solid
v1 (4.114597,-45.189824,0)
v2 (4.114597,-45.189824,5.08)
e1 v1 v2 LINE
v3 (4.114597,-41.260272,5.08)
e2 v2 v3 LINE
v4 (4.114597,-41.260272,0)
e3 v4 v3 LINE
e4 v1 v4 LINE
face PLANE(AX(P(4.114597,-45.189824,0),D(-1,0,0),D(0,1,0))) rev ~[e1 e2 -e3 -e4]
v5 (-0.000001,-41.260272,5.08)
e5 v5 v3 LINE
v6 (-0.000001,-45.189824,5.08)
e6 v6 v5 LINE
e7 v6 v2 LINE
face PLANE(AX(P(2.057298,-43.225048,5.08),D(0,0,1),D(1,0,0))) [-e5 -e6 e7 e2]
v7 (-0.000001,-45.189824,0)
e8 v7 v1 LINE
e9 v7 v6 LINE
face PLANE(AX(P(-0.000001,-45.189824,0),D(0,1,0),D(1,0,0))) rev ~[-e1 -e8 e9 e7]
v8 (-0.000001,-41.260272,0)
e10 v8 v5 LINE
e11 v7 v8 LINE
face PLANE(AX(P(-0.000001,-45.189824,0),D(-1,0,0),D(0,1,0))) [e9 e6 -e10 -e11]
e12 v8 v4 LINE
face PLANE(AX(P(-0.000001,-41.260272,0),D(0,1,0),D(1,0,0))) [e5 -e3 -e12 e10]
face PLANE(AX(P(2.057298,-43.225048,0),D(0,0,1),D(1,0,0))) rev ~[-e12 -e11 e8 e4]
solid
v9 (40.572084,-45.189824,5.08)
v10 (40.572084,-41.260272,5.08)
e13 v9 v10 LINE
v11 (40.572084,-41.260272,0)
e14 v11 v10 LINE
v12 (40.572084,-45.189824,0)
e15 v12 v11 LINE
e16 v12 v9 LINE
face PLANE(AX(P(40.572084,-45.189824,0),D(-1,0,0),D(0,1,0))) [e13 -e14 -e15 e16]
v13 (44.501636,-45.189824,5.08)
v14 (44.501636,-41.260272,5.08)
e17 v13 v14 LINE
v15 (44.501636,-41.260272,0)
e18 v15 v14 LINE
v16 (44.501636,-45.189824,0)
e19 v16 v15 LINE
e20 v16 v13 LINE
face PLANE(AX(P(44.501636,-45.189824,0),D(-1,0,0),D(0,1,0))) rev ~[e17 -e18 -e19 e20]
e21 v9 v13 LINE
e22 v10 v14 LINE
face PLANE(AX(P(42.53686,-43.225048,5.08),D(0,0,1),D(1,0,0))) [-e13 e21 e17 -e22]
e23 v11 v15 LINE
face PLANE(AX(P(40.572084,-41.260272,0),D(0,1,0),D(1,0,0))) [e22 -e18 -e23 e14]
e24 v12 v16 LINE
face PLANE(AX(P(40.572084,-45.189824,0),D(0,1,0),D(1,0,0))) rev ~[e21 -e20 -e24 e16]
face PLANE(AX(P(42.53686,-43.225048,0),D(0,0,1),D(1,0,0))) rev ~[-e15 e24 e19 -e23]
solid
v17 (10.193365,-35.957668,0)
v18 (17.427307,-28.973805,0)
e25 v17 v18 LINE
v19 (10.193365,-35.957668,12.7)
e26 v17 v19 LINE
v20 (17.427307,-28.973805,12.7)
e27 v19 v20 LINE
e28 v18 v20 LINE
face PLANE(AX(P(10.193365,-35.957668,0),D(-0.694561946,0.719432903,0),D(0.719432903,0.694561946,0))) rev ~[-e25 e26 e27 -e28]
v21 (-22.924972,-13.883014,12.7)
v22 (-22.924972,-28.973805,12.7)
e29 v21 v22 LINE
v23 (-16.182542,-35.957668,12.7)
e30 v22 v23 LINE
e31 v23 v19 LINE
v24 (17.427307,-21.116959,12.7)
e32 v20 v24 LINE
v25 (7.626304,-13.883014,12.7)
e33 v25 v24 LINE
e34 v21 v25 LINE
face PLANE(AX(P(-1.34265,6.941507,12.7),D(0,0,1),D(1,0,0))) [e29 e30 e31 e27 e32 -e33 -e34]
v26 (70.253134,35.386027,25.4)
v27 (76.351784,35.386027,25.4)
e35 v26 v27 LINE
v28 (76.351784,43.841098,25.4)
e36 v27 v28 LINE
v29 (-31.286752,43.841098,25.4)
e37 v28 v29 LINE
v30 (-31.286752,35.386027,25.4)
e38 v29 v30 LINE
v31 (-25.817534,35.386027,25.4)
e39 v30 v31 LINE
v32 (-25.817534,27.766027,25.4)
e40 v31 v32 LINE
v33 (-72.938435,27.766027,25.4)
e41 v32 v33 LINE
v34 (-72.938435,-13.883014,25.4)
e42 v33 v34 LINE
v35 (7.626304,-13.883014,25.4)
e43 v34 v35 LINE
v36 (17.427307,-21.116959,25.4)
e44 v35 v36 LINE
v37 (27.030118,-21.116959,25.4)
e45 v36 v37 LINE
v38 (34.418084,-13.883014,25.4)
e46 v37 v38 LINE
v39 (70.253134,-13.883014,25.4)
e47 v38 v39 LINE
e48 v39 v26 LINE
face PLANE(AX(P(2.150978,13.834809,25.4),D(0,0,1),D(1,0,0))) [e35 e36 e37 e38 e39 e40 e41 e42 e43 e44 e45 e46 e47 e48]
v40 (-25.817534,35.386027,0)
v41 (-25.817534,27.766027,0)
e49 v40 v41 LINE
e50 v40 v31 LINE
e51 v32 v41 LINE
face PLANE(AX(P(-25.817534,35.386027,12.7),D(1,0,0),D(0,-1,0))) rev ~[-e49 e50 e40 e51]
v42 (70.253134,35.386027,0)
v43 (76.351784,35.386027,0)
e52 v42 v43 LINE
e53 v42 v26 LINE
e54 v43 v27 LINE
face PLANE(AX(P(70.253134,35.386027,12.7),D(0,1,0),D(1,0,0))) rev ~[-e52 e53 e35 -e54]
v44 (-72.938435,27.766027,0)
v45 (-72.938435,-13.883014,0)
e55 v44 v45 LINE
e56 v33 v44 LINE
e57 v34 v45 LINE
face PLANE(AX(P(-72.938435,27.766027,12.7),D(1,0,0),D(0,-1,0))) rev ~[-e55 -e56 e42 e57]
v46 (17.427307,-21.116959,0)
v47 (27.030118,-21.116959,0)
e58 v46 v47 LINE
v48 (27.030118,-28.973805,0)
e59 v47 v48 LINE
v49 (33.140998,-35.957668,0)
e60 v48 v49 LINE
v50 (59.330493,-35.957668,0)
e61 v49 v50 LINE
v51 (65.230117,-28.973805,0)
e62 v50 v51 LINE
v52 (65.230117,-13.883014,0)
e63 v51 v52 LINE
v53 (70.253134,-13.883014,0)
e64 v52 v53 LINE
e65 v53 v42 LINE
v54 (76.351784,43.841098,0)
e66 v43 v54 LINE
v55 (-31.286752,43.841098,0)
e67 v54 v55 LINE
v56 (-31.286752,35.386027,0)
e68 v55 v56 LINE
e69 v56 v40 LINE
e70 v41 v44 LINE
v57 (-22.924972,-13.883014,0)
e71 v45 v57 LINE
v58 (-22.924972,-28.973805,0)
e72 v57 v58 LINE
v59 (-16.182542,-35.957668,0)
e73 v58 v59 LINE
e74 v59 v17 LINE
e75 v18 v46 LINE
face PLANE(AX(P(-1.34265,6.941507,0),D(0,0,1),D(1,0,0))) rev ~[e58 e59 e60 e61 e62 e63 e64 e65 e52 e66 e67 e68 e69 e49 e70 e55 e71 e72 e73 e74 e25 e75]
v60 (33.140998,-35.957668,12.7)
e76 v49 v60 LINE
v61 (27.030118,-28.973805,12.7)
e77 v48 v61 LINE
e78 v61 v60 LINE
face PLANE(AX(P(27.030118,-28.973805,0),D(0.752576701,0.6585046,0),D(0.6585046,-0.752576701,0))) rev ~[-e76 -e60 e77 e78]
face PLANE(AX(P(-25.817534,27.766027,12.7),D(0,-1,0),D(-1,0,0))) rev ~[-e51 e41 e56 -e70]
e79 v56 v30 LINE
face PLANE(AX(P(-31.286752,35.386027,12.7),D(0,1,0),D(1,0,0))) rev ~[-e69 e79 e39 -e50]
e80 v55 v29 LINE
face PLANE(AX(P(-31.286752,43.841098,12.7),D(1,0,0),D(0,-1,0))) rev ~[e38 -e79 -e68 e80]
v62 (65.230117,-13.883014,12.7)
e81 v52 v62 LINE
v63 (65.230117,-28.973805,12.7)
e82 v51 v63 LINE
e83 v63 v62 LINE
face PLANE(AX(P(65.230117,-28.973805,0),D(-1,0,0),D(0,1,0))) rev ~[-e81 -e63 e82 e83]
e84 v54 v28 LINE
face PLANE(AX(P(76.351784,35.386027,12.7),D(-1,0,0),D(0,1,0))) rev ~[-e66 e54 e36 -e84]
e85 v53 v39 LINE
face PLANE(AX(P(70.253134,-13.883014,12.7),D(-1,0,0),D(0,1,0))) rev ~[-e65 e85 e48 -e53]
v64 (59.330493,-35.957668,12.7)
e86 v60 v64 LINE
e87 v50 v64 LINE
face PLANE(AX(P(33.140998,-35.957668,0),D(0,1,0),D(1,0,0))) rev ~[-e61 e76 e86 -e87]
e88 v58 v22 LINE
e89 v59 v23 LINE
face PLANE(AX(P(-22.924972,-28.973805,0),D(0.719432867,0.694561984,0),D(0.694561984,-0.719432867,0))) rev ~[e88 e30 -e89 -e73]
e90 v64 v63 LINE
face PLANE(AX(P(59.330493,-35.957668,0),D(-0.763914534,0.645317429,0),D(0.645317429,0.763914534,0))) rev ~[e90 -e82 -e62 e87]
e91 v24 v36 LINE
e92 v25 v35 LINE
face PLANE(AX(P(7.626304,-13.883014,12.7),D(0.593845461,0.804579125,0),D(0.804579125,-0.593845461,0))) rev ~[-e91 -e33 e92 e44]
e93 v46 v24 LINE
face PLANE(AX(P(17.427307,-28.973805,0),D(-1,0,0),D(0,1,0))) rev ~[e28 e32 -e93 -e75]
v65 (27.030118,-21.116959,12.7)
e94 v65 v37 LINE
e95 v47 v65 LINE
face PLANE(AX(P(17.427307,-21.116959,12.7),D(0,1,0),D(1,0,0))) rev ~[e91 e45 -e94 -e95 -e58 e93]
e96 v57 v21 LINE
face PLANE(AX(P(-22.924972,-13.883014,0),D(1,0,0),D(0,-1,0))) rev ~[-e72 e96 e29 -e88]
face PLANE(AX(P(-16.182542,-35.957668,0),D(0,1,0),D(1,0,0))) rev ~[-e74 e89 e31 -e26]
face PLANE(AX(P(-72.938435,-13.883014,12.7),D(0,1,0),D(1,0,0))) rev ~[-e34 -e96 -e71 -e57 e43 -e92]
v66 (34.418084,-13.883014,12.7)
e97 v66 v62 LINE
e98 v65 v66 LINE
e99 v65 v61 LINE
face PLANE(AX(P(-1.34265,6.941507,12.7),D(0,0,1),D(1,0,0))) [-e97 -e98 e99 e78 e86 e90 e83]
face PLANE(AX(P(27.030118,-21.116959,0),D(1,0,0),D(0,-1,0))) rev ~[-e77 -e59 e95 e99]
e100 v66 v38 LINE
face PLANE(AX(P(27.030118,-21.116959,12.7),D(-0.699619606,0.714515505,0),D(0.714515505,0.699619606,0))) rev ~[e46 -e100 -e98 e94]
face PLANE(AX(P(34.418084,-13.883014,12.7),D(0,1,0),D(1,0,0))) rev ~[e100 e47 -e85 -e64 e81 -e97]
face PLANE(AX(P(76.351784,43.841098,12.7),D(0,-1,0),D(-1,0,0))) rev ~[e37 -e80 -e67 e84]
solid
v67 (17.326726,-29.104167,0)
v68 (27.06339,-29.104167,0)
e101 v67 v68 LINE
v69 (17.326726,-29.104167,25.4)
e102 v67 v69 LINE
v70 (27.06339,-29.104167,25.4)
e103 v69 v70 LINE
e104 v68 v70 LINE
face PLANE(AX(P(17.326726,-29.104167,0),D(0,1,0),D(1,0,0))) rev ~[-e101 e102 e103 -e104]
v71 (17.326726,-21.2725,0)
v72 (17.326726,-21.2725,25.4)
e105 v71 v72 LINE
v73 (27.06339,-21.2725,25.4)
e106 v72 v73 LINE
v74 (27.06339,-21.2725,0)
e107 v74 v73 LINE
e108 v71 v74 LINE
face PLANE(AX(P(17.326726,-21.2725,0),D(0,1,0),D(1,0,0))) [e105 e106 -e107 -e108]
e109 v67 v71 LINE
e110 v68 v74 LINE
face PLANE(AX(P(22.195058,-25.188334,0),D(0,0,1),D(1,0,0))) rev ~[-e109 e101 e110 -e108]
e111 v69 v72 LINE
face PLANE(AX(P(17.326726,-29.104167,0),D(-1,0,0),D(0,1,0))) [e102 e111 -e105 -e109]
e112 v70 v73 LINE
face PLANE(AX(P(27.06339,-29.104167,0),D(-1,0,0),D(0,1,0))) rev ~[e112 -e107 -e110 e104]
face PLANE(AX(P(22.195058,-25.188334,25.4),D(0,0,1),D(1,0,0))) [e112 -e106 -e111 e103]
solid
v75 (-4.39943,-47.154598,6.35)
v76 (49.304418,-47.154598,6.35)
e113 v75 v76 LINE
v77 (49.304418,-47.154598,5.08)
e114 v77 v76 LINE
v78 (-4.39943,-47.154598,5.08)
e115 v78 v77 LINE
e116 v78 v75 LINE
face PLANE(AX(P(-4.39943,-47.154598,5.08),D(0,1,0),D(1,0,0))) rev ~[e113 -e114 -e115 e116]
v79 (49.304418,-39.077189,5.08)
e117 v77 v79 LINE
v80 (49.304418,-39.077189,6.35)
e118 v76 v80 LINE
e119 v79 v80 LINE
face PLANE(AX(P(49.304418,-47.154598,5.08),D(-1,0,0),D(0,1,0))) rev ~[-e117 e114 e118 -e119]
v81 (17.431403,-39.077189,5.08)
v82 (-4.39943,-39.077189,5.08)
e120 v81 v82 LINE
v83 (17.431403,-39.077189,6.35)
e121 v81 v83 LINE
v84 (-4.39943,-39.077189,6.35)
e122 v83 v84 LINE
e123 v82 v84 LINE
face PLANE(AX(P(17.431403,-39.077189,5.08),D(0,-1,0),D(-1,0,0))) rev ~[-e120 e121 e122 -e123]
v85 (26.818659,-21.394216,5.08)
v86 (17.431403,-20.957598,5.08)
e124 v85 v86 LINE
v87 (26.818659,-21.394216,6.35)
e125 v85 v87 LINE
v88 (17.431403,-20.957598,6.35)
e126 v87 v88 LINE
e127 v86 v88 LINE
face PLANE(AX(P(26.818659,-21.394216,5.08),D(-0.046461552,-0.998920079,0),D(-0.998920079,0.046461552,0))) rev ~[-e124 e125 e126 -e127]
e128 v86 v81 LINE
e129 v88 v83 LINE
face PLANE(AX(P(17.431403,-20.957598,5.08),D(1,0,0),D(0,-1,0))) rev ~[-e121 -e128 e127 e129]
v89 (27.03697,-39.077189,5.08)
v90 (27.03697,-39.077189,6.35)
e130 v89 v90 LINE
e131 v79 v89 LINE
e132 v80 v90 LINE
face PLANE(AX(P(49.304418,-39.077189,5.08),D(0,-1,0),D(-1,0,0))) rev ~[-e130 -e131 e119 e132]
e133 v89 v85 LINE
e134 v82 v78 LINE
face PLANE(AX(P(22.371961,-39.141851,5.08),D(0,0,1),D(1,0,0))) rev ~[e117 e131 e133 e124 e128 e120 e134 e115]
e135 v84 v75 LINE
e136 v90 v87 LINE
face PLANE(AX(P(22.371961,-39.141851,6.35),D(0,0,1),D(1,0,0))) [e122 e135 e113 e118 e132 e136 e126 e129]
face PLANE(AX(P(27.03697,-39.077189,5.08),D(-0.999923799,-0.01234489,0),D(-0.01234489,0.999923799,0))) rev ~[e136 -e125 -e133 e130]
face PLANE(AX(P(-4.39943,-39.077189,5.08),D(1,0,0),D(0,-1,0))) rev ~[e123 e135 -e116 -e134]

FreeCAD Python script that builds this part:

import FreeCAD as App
import Part
import Sketcher
Q = App.Units.Quantity


def add_polygon(sketch, points):
    """Adds a closed chain of lines whose ends are joined by coincident constraints."""
    first, n = sketch.GeometryCount, len(points)
    for a, b in zip(points, points[1:] + points[:1]):
        sketch.addGeometry(Part.LineSegment(App.Vector(*a, 0), App.Vector(*b, 0)), False)
    for i in range(n):
        sketch.addConstraint(Sketcher.Constraint("Coincident", first + i, 2, first + (i + 1) % n, 1))

doc = App.newDocument("Part")
body = doc.addObject("PartDesign::Body", "Body")

sketch1 = body.newObject("Sketcher::SketchObject", "Sketch")
sketch1.AttachmentSupport = (doc.getObject("XY_Plane"), [""])
sketch1.MapMode = "FlatFace"
add_polygon(sketch1, [(-73, 28), (-73, -14), (-23, -14), (-23, -29), (-16, -36), (10, -36), (17, -29), (17, -21), (27, -21), (27, -29), (33, -36), (59, -36), (65, -29), (65, -14), (70, -14), (70, 35), (76, 35), (76, 44), (-31, 44), (-31, 35), (-26, 35), (-26, 28)])
sketch1.addConstraint(Sketcher.Constraint("Vertical", 0))
sketch1.addConstraint(Sketcher.Constraint("Horizontal", 1))
sketch1.addConstraint(Sketcher.Constraint("Vertical", 2))
sketch1.addConstraint(Sketcher.Constraint("Horizontal", 4))
sketch1.addConstraint(Sketcher.Constraint("Vertical", 6))
sketch1.addConstraint(Sketcher.Constraint("Horizontal", 7))
sketch1.addConstraint(Sketcher.Constraint("Vertical", 8))
sketch1.addConstraint(Sketcher.Constraint("Horizontal", 10))
sketch1.addConstraint(Sketcher.Constraint("Vertical", 12))
sketch1.addConstraint(Sketcher.Constraint("Horizontal", 13))
sketch1.addConstraint(Sketcher.Constraint("Vertical", 14))
sketch1.addConstraint(Sketcher.Constraint("Horizontal", 15))
sketch1.addConstraint(Sketcher.Constraint("Vertical", 16))
sketch1.addConstraint(Sketcher.Constraint("Horizontal", 17))
sketch1.addConstraint(Sketcher.Constraint("Vertical", 18))
sketch1.addConstraint(Sketcher.Constraint("Horizontal", 19))
sketch1.addConstraint(Sketcher.Constraint("Vertical", 20))
sketch1.addConstraint(Sketcher.Constraint("Horizontal", 21))
sketch1.addConstraint(Sketcher.Constraint("Perpendicular", 3, 5))
sketch1.addConstraint(Sketcher.Constraint("Horizontal", 2, 2, 5, 2))
sketch1.addConstraint(Sketcher.Constraint("Horizontal", 5, 2, 8, 2))
sketch1.addConstraint(Sketcher.Constraint("Horizontal", 4, 2, 9, 2))
sketch1.addConstraint(Sketcher.Constraint("Horizontal", 8, 2, 11, 2))
sketch1.addConstraint(Sketcher.Constraint("Horizontal", 1, 2, 12, 2))
sketch1.addConstraint(Sketcher.Constraint("Horizontal", 15, 2, 18, 2))
sketch1.addConstraint(Sketcher.Constraint("DistanceY", 20, 2, 20, 1, Q("0.3 in")))
sketch1.addConstraint(Sketcher.Constraint("DistanceX", 21, 2, 21, 1, 47.120901))
sketch1.addConstraint(Sketcher.Constraint("DistanceX", 7, 1, 7, 2, 9.602811))
sketch1.addConstraint(Sketcher.Constraint("DistanceX", 15, 1, 15, 2, 6.09865))
sketch1.addConstraint(Sketcher.Constraint("DistanceX", 19, 1, 19, 2, 5.469218))
sketch1.addConstraint(Sketcher.Constraint("DistanceY", 0, 2, 0, 1, 41.649041))
sketch1.addConstraint(Sketcher.Constraint("DistanceY", 2, 2, 2, 1, 15.090791))
sketch1.addConstraint(Sketcher.Constraint("DistanceY", 16, 1, 16, 2, 8.455071))
sketch1.addConstraint(Sketcher.Constraint("DistanceX", -1, 1, 9, 2, 33.140998))
sketch1.addConstraint(Sketcher.Constraint("DistanceY", -1, 1, 16, 2, 43.841098))
sketch1.addConstraint(Sketcher.Constraint("DistanceX", 0, 2, 4, 2, 83.1318))
sketch1.addConstraint(Sketcher.Constraint("DistanceX", 8, 2, 11, 2, 38.199999))
sketch1.addConstraint(Sketcher.Constraint("Distance", 5, 10.055061))
sketch1.addConstraint(Sketcher.Constraint("DistanceX", 1, 1, 1, 2, 50.013463))
sketch1.addConstraint(Sketcher.Constraint("DistanceX", 4, 1, 4, 2, 26.375907))
sketch1.addConstraint(Sketcher.Constraint("DistanceX", 10, 1, 10, 2, 26.189495))
sketch1.addConstraint(Sketcher.Constraint("DistanceX", 13, 1, 13, 2, 5.023017))
sketch1.addConstraint(Sketcher.Constraint("DistanceY", 6, 1, 6, 2, 7.856846))
sketch1.addConstraint(Sketcher.Constraint("DistanceX", -1, 1, 7, 2, 27.030118))
pad1 = body.newObject("PartDesign::Pad", "Pad")
pad1.Profile = sketch1
pad1.Length = Q("0.5 in")

sketch2 = body.newObject("Sketcher::SketchObject", "Sketch001")
sketch2.AttachmentSupport = (doc.getObject("XY_Plane"), [""])
sketch2.MapMode = "FlatFace"
sketch2.AttachmentOffset = App.Placement(App.Vector(0, 0, 0.5 * 25.4), App.Rotation())
add_polygon(sketch2, [(-73, -14), (8, -14), (17, -21), (27, -21), (34, -14), (70, -14), (70, 35), (76, 35), (76, 44), (-31, 44), (-31, 35), (-26, 35), (-26, 28), (-73, 28)])
sketch2.addConstraint(Sketcher.Constraint("Horizontal", 0))
sketch2.addConstraint(Sketcher.Constraint("Horizontal", 2))
sketch2.addConstraint(Sketcher.Constraint("Horizontal", 4))
sketch2.addConstraint(Sketcher.Constraint("Vertical", 5))
sketch2.addConstraint(Sketcher.Constraint("Horizontal", 6))
sketch2.addConstraint(Sketcher.Constraint("Vertical", 7))
sketch2.addConstraint(Sketcher.Constraint("Horizontal", 8))
sketch2.addConstraint(Sketcher.Constraint("Vertical", 9))
sketch2.addConstraint(Sketcher.Constraint("Horizontal", 10))
sketch2.addConstraint(Sketcher.Constraint("Vertical", 11))
sketch2.addConstraint(Sketcher.Constraint("Horizontal", 12))
sketch2.addConstraint(Sketcher.Constraint("Vertical", 13))
sketch2.addConstraint(Sketcher.Constraint("Horizontal", 0, 2, 3, 2))
sketch2.addConstraint(Sketcher.Constraint("Horizontal", 6, 2, 9, 2))
sketch2.addConstraint(Sketcher.Constraint("DistanceY", 11, 2, 11, 1, Q("0.3 in")))
sketch2.addConstraint(Sketcher.Constraint("DistanceX", 12, 2, 12, 1, 47.120901))
sketch2.addConstraint(Sketcher.Constraint("DistanceX", 0, 1, 0, 2, 80.564739))
sketch2.addConstraint(Sketcher.Constraint("DistanceX", 2, 1, 2, 2, 9.602811))
sketch2.addConstraint(Sketcher.Constraint("DistanceX", 4, 1, 4, 2, 35.83505))
sketch2.addConstraint(Sketcher.Constraint("DistanceX", 6, 1, 6, 2, 6.09865))
sketch2.addConstraint(Sketcher.Constraint("DistanceX", 10, 1, 10, 2, 5.469218))
sketch2.addConstraint(Sketcher.Constraint("DistanceY", 5, 1, 5, 2, 49.269041))
sketch2.addConstraint(Sketcher.Constraint("DistanceY", 7, 1, 7, 2, 8.455071))
sketch2.addConstraint(Sketcher.Constraint("DistanceY", -1, 1, 7, 2, 43.841098))
sketch2.addConstraint(Sketcher.Constraint("DistanceX", 8, 2, 8, 1, 107.638536))
sketch2.addConstraint(Sketcher.Constraint("DistanceY", 1, 2, -1, 1, 21.116959))
sketch2.addConstraint(Sketcher.Constraint("DistanceX", -1, 1, 2, 2, 27.030118))
sketch2.addConstraint(Sketcher.Constraint("DistanceX", 8, 2, -1, 1, 31.286752))
pad2 = body.newObject("PartDesign::Pad", "Pad001")
pad2.Profile = sketch2
pad2.Length = Q("0.5 in")
body2 = doc.addObject("PartDesign::Body", "Body001")
body2.AllowCompound = True

sketch3 = body2.newObject("Sketcher::SketchObject", "Sketch002")
sketch3.AttachmentSupport = (doc.getObject("XY_Plane001"), [""])
sketch3.MapMode = "FlatFace"
add_polygon(sketch3, [(0, -41.3), (0, -45.2), (4.1, -45.2), (4.1, -41.3)])
add_polygon(sketch3, [(40.6, -41.3), (40.6, -45.2), (44.5, -45.2), (44.5, -41.3)])
sketch3.addConstraint(Sketcher.Constraint("Vertical", 0))
sketch3.addConstraint(Sketcher.Constraint("Horizontal", 1))
sketch3.addConstraint(Sketcher.Constraint("Vertical", 2))
sketch3.addConstraint(Sketcher.Constraint("Horizontal", 3))
sketch3.addConstraint(Sketcher.Constraint("Vertical", 4))
sketch3.addConstraint(Sketcher.Constraint("Horizontal", 5))
sketch3.addConstraint(Sketcher.Constraint("Vertical", 6))
sketch3.addConstraint(Sketcher.Constraint("Horizontal", 7))
sketch3.addConstraint(Sketcher.Constraint("PointOnObject", 0, 2, -2))
sketch3.addConstraint(Sketcher.Constraint("Horizontal", 1, 2, 4, 2))
sketch3.addConstraint(Sketcher.Constraint("Horizontal", 3, 2, 6, 2))
sketch3.addConstraint(Sketcher.Constraint("Equal", 7, 0))
sketch3.addConstraint(Sketcher.Constraint("DistanceX", 1, 1, 1, 2, 4.114597))
sketch3.addConstraint(Sketcher.Constraint("DistanceX", 5, 1, 5, 2, 3.929552))
sketch3.addConstraint(Sketcher.Constraint("DistanceX", 1, 2, 5, 2, 40.38704))
sketch3.addConstraint(Sketcher.Constraint("DistanceY", 0, 2, -1, 1, 45.189824))
pad3 = body2.newObject("PartDesign::Pad", "Pad002")
pad3.Profile = sketch3
pad3.Length = Q("0.2 in")
body3 = doc.addObject("PartDesign::Body", "Body002")

sketch4 = body3.newObject("Sketcher::SketchObject", "Sketch003")
sketch4.AttachmentSupport = (doc.getObject("XY_Plane002"), [""])
sketch4.MapMode = "FlatFace"
sketch4.AttachmentOffset = App.Placement(App.Vector(0, 0, 0.2 * 25.4), App.Rotation())
add_polygon(sketch4, [(27, -21), (17, -21), (17, -39), (-4, -39), (-4, -47), (49, -47), (49, -39), (27, -39)])
sketch4.addConstraint(Sketcher.Constraint("Vertical", 1))
sketch4.addConstraint(Sketcher.Constraint("Horizontal", 2))
sketch4.addConstraint(Sketcher.Constraint("Vertical", 3))
sketch4.addConstraint(Sketcher.Constraint("Horizontal", 4))
sketch4.addConstraint(Sketcher.Constraint("Vertical", 5))
sketch4.addConstraint(Sketcher.Constraint("Horizontal", 6))
sketch4.addConstraint(Sketcher.Constraint("Horizontal", 2, 2, 5, 2))
sketch4.addConstraint(Sketcher.Constraint("DistanceY", 1, 2, 1, 1, 18.119591))
sketch4.addConstraint(Sketcher.Constraint("DistanceY", 3, 2, 3, 1, 8.077409))
sketch4.addConstraint(Sketcher.Constraint("DistanceY", 0, 2, -1, 1, 20.957598))
sketch4.addConstraint(Sketcher.Constraint("DistanceX", 2, 2, 6, 2, 31.4364))
sketch4.addConstraint(Sketcher.Constraint("Distance", 7, 17.684321))
sketch4.addConstraint(Sketcher.Constraint("DistanceX", 2, 2, 2, 1, 21.830833))
sketch4.addConstraint(Sketcher.Constraint("DistanceX", 4, 1, 4, 2, 53.703848))
sketch4.addConstraint(Sketcher.Constraint("DistanceX", 2, 2, -1, 1, 4.39943))
sketch4.addConstraint(Sketcher.Constraint("DistanceX", -1, 1, 7, 2, 26.818659))
pad4 = body3.newObject("PartDesign::Pad", "Pad003")
pad4.Profile = sketch4
pad4.Length = Q("0.05 in")
body4 = doc.addObject("PartDesign::Body", "Body003")

sketch5 = body4.newObject("Sketcher::SketchObject", "Sketch004")
sketch5.AttachmentSupport = (doc.getObject("XY_Plane003"), [""])
sketch5.MapMode = "FlatFace"
add_polygon(sketch5, [(17, -21), (17, -29), (27, -29), (27, -21)])
sketch5.addConstraint(Sketcher.Constraint("Vertical", 0))
sketch5.addConstraint(Sketcher.Constraint("Horizontal", 1))
sketch5.addConstraint(Sketcher.Constraint("Vertical", 2))
sketch5.addConstraint(Sketcher.Constraint("Horizontal", 3))
sketch5.addConstraint(Sketcher.Constraint("DistanceY", 2, 2, -1, 1, Q("0.8375 in")))
sketch5.addConstraint(Sketcher.Constraint("DistanceX", 1, 1, 1, 2, 9.736664))
sketch5.addConstraint(Sketcher.Constraint("DistanceY", 0, 2, 0, 1, 7.831667))
sketch5.addConstraint(Sketcher.Constraint("DistanceX", -1, 1, 1, 2, 27.06339))
pad5 = body4.newObject("PartDesign::Pad", "Pad004")
pad5.Profile = sketch5
pad5.Length = Q("1 in")

doc.recompute()
